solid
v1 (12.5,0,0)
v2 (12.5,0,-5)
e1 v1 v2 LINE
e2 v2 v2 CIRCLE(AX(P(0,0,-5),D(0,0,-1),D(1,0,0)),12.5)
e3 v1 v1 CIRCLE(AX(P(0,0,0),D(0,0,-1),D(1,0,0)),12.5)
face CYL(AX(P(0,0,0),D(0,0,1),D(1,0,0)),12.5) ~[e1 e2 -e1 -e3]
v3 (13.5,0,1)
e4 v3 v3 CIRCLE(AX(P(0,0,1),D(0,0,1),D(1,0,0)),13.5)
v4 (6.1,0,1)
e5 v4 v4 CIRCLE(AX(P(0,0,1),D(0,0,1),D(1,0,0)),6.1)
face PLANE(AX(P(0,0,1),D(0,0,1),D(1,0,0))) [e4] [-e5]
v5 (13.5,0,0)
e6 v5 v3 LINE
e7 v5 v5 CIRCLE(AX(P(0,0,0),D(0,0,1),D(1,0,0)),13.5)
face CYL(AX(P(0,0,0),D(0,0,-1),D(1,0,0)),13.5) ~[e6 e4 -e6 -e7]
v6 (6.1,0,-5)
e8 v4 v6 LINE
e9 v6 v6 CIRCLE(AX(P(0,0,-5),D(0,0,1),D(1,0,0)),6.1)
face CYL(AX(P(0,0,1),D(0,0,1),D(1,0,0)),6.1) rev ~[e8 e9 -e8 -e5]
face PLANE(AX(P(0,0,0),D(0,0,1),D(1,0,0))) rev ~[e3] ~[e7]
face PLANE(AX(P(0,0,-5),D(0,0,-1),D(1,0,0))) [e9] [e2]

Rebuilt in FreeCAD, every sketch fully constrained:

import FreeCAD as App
import Part
import Sketcher
from FreeCAD import Vector

doc = App.newDocument("Part")
body = doc.addObject("PartDesign::Body", "Body")

# Sketch on XY plane
sketch1 = body.newObject("Sketcher::SketchObject", "Sketch")
sketch1.AttachmentSupport = (doc.getObject("XY_Plane"), [""])
sketch1.MapMode = "FlatFace"
sketch1.addGeometry(Part.Circle(Vector(0, 0, 0), Vector(0, 0, 1), 14), False)
sketch1.addConstraint(Sketcher.Constraint("Coincident", 0, 3, -1, 1))
sketch1.addConstraint(Sketcher.Constraint("Diameter", 0, 27.0))
pad1 = body.newObject("PartDesign::Pad", "Pad")
pad1.Profile = sketch1
pad1.Length = 1

# Sketch on XY plane
sketch2 = body.newObject("Sketcher::SketchObject", "Sketch001")
sketch2.AttachmentSupport = (doc.getObject("XY_Plane"), [""])
sketch2.MapMode = "FlatFace"
sketch2.addGeometry(Part.Circle(Vector(0, 0, 0), Vector(0, 0, 1), 12), False)
sketch2.addConstraint(Sketcher.Constraint("Coincident", 0, 3, -1, 1))
sketch2.addConstraint(Sketcher.Constraint("Diameter", 0, 25.0))
pad2 = body.newObject("PartDesign::Pad", "Pad001")
pad2.Profile = sketch2
pad2.Length = 5
pad2.Reversed = True

# Sketch on XY plane
sketch3 = body.newObject("Sketcher::SketchObject", "Sketch002")
sketch3.AttachmentSupport = (doc.getObject("XY_Plane"), [""])
sketch3.MapMode = "FlatFace"
sketch3.AttachmentOffset = App.Placement(Vector(0, 0, 1), App.Rotation())
sketch3.addGeometry(Part.Circle(Vector(0, 0, 0), Vector(0, 0, 1), 6), False)
sketch3.addConstraint(Sketcher.Constraint("Coincident", 0, 3, -1, 1))
sketch3.addConstraint(Sketcher.Constraint("Diameter", 0, 12.2))
pocket1 = body.newObject("PartDesign::Pocket", "Pocket")
pocket1.Profile = sketch3
pocket1.Type = "ThroughAll"

doc.recompute()
